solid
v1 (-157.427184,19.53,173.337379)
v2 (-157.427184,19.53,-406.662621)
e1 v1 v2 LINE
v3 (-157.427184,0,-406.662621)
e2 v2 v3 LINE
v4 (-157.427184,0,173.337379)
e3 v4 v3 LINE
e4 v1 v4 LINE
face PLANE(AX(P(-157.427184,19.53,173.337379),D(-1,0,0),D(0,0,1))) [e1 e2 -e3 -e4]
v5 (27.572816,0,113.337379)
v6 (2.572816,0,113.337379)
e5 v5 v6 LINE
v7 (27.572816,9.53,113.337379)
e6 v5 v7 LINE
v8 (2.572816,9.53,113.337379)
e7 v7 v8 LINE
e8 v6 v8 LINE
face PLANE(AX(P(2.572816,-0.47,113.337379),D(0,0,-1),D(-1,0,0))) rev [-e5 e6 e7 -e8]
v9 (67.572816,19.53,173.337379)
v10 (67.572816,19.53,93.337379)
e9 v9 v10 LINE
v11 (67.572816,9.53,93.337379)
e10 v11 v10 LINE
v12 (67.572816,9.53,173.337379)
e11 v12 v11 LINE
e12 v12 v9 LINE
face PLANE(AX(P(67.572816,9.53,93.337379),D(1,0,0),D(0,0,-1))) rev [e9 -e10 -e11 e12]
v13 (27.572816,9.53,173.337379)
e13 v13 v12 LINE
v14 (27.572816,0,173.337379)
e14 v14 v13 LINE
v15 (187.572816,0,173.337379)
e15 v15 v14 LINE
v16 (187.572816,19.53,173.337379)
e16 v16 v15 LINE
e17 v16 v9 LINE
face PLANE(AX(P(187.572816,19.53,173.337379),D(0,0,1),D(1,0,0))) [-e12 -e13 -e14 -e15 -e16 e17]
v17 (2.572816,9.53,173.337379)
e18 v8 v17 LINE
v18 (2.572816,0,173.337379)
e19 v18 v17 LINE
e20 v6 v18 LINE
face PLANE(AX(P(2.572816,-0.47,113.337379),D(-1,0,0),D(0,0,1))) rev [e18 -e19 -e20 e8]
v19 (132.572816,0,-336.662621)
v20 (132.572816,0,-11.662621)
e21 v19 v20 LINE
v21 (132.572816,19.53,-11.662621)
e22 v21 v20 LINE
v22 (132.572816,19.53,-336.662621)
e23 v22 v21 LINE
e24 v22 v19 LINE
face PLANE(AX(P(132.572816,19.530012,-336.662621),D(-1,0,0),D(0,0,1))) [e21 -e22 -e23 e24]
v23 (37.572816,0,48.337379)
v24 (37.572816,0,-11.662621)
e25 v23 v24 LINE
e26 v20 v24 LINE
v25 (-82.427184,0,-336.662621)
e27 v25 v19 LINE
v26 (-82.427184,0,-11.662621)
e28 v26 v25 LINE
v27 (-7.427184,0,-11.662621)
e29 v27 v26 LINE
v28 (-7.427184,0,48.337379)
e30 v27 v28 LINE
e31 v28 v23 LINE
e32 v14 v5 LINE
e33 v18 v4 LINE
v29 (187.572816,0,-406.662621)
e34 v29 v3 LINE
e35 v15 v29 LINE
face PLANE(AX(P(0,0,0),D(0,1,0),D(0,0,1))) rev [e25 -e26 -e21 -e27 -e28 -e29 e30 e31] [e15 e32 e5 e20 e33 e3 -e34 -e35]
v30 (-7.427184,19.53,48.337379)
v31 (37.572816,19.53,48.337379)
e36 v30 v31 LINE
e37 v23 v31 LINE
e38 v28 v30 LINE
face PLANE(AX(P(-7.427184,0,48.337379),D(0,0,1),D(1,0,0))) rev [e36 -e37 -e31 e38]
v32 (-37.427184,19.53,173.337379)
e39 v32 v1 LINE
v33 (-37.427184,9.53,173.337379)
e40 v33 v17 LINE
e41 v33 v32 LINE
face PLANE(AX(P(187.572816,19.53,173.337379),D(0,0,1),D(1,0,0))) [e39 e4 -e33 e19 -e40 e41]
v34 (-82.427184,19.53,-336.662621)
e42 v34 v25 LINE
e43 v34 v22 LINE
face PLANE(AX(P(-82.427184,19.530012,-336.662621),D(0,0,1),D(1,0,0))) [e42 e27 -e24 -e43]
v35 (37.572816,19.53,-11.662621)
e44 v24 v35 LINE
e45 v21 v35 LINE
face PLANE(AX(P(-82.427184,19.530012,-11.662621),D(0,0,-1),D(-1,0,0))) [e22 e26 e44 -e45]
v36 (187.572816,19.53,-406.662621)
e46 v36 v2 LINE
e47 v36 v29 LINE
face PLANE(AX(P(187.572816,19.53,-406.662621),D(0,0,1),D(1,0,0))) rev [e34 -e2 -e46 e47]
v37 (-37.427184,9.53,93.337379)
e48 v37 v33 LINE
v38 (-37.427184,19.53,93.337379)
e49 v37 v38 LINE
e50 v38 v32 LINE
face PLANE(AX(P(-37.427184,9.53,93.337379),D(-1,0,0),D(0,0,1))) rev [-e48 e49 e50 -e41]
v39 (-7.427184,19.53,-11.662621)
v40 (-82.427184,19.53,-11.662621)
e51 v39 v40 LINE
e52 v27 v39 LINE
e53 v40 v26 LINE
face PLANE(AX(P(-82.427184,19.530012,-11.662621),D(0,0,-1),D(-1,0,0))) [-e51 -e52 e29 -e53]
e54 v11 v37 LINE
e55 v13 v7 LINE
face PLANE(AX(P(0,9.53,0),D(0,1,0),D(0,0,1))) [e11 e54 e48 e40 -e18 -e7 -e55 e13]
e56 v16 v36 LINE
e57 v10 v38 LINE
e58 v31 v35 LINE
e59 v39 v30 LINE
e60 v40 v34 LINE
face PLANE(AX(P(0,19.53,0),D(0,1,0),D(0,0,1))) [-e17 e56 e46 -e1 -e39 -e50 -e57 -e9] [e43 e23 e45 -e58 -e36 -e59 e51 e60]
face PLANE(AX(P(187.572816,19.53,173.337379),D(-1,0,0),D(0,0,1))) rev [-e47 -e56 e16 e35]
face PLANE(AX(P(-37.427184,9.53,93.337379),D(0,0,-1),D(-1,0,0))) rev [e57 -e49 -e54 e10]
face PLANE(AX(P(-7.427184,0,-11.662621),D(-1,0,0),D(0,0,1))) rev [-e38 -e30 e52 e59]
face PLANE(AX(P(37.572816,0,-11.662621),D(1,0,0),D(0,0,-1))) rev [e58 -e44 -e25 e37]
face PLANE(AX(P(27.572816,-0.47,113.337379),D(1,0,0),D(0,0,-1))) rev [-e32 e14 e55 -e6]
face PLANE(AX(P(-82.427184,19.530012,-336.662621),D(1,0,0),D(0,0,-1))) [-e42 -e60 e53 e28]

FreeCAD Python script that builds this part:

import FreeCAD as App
import Part
import Sketcher

V = App.Vector
Q = App.Units.Quantity


def add_polygon(sketch, points):
    """Adds a closed chain of lines whose ends are joined by coincident constraints."""
    first, n = sketch.GeometryCount, len(points)
    for a, b in zip(points, points[1:] + points[:1]):
        sketch.addGeometry(Part.LineSegment(App.Vector(*a, 0), App.Vector(*b, 0)), False)
    for i in range(n):
        sketch.addConstraint(Sketcher.Constraint("Coincident", first + i, 2, first + (i + 1) % n, 1))

doc = App.newDocument("Part")
body = doc.addObject("PartDesign::Body", "Body")

# Sketch on XZ plane
sketch1 = body.newObject("Sketcher::SketchObject", "Sketch")
sketch1.AttachmentSupport = (doc.getObject("XZ_Plane"), [""])
sketch1.MapMode = "FlatFace"
add_polygon(sketch1, [(-157, -407), (-157, 173), (188, 173), (188, -407)])  # lines 0-3
sketch1.addConstraint(Sketcher.Constraint("Vertical", 0))
sketch1.addConstraint(Sketcher.Constraint("Horizontal", 1))
sketch1.addConstraint(Sketcher.Constraint("Vertical", 2))
sketch1.addConstraint(Sketcher.Constraint("Horizontal", 3))
sketch1.addConstraint(Sketcher.Constraint("DistanceX", 1, 1, 1, 2, Q("345 mm")))
sketch1.addConstraint(Sketcher.Constraint("DistanceY", 0, 1, 0, 2, Q("580 mm")))
sketch1.addConstraint(Sketcher.Constraint("DistanceY", -1, 1, 0, 2, Q("173.337379 mm")))
sketch1.addConstraint(Sketcher.Constraint("DistanceX", 0, 2, -1, 1, Q("157.427184 mm")))
pad1 = body.newObject("PartDesign::Pad", "Pad")
pad1.Profile = sketch1
pad1.Length = 19.53
pad1.Reversed = True

# Sketch on XZ plane
sketch2 = body.newObject("Sketcher::SketchObject", "Sketch001")
sketch2.AttachmentSupport = (doc.getObject("XZ_Plane"), [""])
sketch2.MapMode = "FlatFace"
sketch2.AttachmentOffset = App.Placement(V(0, 0, -19.53), App.Rotation())
add_polygon(sketch2, [(-82, -337), (-82, -12), (133, -12), (133, -337)])  # lines 0-3
sketch2.addConstraint(Sketcher.Constraint("Vertical", 0))
sketch2.addConstraint(Sketcher.Constraint("Horizontal", 1))
sketch2.addConstraint(Sketcher.Constraint("Vertical", 2))
sketch2.addConstraint(Sketcher.Constraint("Horizontal", 3))
sketch2.addConstraint(Sketcher.Constraint("DistanceX", 1, 1, 1, 2, Q("215 mm")))
sketch2.addConstraint(Sketcher.Constraint("DistanceY", 0, 1, 0, 2, Q("325 mm")))
sketch2.addConstraint(Sketcher.Constraint("DistanceY", 0, 2, -1, 1, Q("11.662621 mm")))
sketch2.addConstraint(Sketcher.Constraint("DistanceX", 0, 2, -1, 1, Q("82.427184 mm")))
pocket1 = body.newObject("PartDesign::Pocket", "Pocket")
pocket1.Profile = sketch2
pocket1.Type = "UpToFirst"
pocket1.Reversed = True

# Sketch on XZ plane
sketch3 = body.newObject("Sketcher::SketchObject", "Sketch002")
sketch3.AttachmentSupport = (doc.getObject("XZ_Plane"), [""])
sketch3.MapMode = "FlatFace"
sketch3.AttachmentOffset = App.Placement(V(0, 0, -19.53), App.Rotation())
add_polygon(sketch3, [(-82, -337), (-82, -12), (133, -12), (133, -337)])  # lines 0-3
sketch3.addConstraint(Sketcher.Constraint("Vertical", 0))
sketch3.addConstraint(Sketcher.Constraint("Horizontal", 1))
sketch3.addConstraint(Sketcher.Constraint("Vertical", 2))
sketch3.addConstraint(Sketcher.Constraint("Horizontal", 3))
sketch3.addConstraint(Sketcher.Constraint("DistanceX", 1, 1, 1, 2, Q("215 mm")))
sketch3.addConstraint(Sketcher.Constraint("DistanceY", 0, 1, 0, 2, Q("325 mm")))
sketch3.addConstraint(Sketcher.Constraint("DistanceY", 0, 2, -1, 1, Q("11.662621 mm")))
sketch3.addConstraint(Sketcher.Constraint("DistanceX", 0, 2, -1, 1, Q("82.427184 mm")))
pocket2 = body.newObject("PartDesign::Pocket", "Pocket001")
pocket2.Profile = sketch3
pocket2.Length = 449.262724

# Sketch on XZ plane
sketch4 = body.newObject("Sketcher::SketchObject", "Sketch003")
sketch4.AttachmentSupport = (doc.getObject("XZ_Plane"), [""])
sketch4.MapMode = "FlatFace"
sketch4.AttachmentOffset = App.Placement(V(0, 0, -19.53), App.Rotation())
add_polygon(sketch4, [(-7, -12), (-7, 48), (38, 48), (38, -12)])  # lines 0-3
sketch4.addConstraint(Sketcher.Constraint("Vertical", 0))
sketch4.addConstraint(Sketcher.Constraint("Horizontal", 1))
sketch4.addConstraint(Sketcher.Constraint("Vertical", 2))
sketch4.addConstraint(Sketcher.Constraint("Horizontal", 3))
sketch4.addConstraint(Sketcher.Constraint("DistanceX", 1, 1, 1, 2, Q("45 mm")))
sketch4.addConstraint(Sketcher.Constraint("DistanceY", 0, 1, 0, 2, Q("60 mm")))
sketch4.addConstraint(Sketcher.Constraint("DistanceY", -1, 1, 0, 2, Q("48.337379 mm")))
sketch4.addConstraint(Sketcher.Constraint("DistanceX", 0, 2, -1, 1, Q("7.427184 mm")))
pocket3 = body.newObject("PartDesign::Pocket", "Pocket002")
pocket3.Profile = sketch4
pocket3.Length = 19.53
pocket3.Reversed = True

# Sketch on XZ plane
sketch5 = body.newObject("Sketcher::SketchObject", "Sketch004")
sketch5.AttachmentSupport = (doc.getObject("XZ_Plane"), [""])
sketch5.MapMode = "FlatFace"
sketch5.AttachmentOffset = App.Placement(V(0, 0, -19.53), App.Rotation())
add_polygon(sketch5, [(-37, 93), (-37, 173), (68, 173), (68, 93)])  # lines 0-3
sketch5.addConstraint(Sketcher.Constraint("Vertical", 0))
sketch5.addConstraint(Sketcher.Constraint("Horizontal", 1))
sketch5.addConstraint(Sketcher.Constraint("Vertical", 2))
sketch5.addConstraint(Sketcher.Constraint("Horizontal", 3))
sketch5.addConstraint(Sketcher.Constraint("DistanceX", 1, 1, 1, 2, Q("105 mm")))
sketch5.addConstraint(Sketcher.Constraint("DistanceY", 0, 1, 0, 2, Q("80 mm")))
sketch5.addConstraint(Sketcher.Constraint("DistanceY", -1, 1, 0, 2, Q("173.337379 mm")))
sketch5.addConstraint(Sketcher.Constraint("DistanceX", 0, 2, -1, 1, Q("37.427184 mm")))
pocket4 = body.newObject("PartDesign::Pocket", "Pocket003")
pocket4.Profile = sketch5
pocket4.Length = 10
pocket4.Reversed = True

# Sketch on XZ plane
sketch6 = body.newObject("Sketcher::SketchObject", "Sketch005")
sketch6.AttachmentSupport = (doc.getObject("XZ_Plane"), [""])
sketch6.MapMode = "FlatFace"
sketch6.AttachmentOffset = App.Placement(V(0, 0, -9.53), App.Rotation())
add_polygon(sketch6, [(3, 113), (3, 173), (28, 173), (28, 113)])  # lines 0-3
sketch6.addConstraint(Sketcher.Constraint("Vertical", 0))
sketch6.addConstraint(Sketcher.Constraint("Horizontal", 1))
sketch6.addConstraint(Sketcher.Constraint("Vertical", 2))
sketch6.addConstraint(Sketcher.Constraint("Horizontal", 3))
sketch6.addConstraint(Sketcher.Constraint("DistanceX", 1, 1, 1, 2, Q("25 mm")))
sketch6.addConstraint(Sketcher.Constraint("DistanceY", 0, 1, 0, 2, Q("60 mm")))
sketch6.addConstraint(Sketcher.Constraint("DistanceY", -1, 1, 0, 2, Q("173.337379 mm")))
sketch6.addConstraint(Sketcher.Constraint("DistanceX", -1, 1, 0, 2, Q("2.572816 mm")))
pocket5 = body.newObject("PartDesign::Pocket", "Pocket004")
pocket5.Profile = sketch6
pocket5.Length = 10
pocket5.Reversed = True

doc.recompute()
